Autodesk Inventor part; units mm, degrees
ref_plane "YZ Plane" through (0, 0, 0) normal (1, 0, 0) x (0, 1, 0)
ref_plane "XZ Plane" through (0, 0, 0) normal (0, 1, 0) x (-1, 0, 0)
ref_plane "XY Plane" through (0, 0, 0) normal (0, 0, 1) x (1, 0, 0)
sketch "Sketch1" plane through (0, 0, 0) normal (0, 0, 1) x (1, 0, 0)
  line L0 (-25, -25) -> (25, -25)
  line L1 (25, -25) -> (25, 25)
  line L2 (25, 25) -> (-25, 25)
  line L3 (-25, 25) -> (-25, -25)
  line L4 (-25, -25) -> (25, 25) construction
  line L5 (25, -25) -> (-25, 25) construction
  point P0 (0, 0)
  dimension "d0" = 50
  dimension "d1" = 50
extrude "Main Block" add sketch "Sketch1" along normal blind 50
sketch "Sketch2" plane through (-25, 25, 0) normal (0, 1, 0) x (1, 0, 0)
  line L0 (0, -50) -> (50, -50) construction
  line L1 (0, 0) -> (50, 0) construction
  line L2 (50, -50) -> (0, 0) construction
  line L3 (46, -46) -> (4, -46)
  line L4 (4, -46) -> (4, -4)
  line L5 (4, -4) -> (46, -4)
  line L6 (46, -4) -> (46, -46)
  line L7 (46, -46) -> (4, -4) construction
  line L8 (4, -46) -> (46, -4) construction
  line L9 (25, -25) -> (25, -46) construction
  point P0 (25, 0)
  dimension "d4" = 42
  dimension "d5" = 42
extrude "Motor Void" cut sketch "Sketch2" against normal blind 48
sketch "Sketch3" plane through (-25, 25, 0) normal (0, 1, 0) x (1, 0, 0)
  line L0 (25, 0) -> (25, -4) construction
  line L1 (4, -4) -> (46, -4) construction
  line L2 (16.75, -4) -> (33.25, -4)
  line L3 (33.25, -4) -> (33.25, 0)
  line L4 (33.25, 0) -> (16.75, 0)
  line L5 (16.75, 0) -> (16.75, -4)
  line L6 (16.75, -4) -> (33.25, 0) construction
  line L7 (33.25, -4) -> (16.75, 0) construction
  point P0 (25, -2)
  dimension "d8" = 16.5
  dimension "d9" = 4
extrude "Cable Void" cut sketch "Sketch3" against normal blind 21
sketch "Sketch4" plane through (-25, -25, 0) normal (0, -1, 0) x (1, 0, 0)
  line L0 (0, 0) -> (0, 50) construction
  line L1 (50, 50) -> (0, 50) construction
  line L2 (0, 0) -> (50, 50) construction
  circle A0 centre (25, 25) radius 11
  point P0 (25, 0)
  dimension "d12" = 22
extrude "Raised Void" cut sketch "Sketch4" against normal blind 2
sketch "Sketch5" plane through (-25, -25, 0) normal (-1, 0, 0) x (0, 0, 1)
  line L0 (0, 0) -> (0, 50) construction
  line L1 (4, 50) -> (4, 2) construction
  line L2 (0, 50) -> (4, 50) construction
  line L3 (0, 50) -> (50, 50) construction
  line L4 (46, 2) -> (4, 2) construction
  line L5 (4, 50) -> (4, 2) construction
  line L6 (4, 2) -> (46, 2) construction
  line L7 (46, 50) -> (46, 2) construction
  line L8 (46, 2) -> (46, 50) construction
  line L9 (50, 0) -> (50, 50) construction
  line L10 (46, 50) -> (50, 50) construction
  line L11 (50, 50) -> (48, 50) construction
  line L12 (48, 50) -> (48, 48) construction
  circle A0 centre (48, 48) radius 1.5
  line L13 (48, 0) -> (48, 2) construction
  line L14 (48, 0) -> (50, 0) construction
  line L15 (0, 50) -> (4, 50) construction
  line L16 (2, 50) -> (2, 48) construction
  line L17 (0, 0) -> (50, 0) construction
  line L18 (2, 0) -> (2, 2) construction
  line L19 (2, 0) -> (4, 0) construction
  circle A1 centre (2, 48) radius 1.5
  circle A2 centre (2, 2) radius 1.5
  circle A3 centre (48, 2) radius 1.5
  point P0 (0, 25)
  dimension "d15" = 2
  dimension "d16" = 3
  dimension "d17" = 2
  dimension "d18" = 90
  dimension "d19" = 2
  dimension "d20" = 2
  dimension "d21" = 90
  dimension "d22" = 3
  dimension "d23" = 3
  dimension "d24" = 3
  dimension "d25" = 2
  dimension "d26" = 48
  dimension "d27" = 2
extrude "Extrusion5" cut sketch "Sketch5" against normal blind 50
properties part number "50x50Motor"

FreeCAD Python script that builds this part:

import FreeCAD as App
import Part
import Sketcher
Q = App.Units.Quantity

doc = App.newDocument("Part")
body = doc.addObject("PartDesign::Body", "Body")

sketch1 = body.newObject("Sketcher::SketchObject", "Sketch")
sketch1.AttachmentSupport = (doc.getObject("XY_Plane"), [""])
sketch1.MapMode = "FlatFace"
sketch1.addGeometry([
    Part.LineSegment(App.Vector(-25, 25, 0), App.Vector(-25, -25, 0)),
    Part.LineSegment(App.Vector(-25, -25, 0), App.Vector(25, -25, 0)),
    Part.LineSegment(App.Vector(25, -25, 0), App.Vector(25, 25, 0)),
    Part.LineSegment(App.Vector(25, 25, 0), App.Vector(-25, 25, 0)),
], False)
sketch1.addConstraint([
    Sketcher.Constraint("Coincident", 0, 2, 1, 1),
    Sketcher.Constraint("Coincident", 1, 2, 2, 1),
    Sketcher.Constraint("Coincident", 2, 2, 3, 1),
    Sketcher.Constraint("Coincident", 3, 2, 0, 1),
    Sketcher.Constraint("Vertical", 0),
    Sketcher.Constraint("Horizontal", 1),
    Sketcher.Constraint("Vertical", 2),
    Sketcher.Constraint("Horizontal", 3),
    Sketcher.Constraint("Symmetric", 0, 2, 2, 2, -1, 1),
    Sketcher.Constraint("Equal", 3, 0),
    Sketcher.Constraint("DistanceX", 1, 1, 1, 2, Q("50 mm")),
])
pad1 = body.newObject("PartDesign::Pad", "Pad")
pad1.Profile = sketch1
pad1.Length = 50

sketch2 = body.newObject("Sketcher::SketchObject", "Sketch001")
sketch2.AttachmentSupport = (doc.getObject("XZ_Plane"), [""])
sketch2.MapMode = "FlatFace"
sketch2.AttachmentOffset = App.Placement(App.Vector(0, 0, -25), App.Rotation())
sketch2.addGeometry([
    Part.LineSegment(App.Vector(-21, 46, 0), App.Vector(21, 46, 0)),
    Part.LineSegment(App.Vector(21, 46, 0), App.Vector(21, 4, 0)),
    Part.LineSegment(App.Vector(21, 4, 0), App.Vector(-21, 4, 0)),
    Part.LineSegment(App.Vector(-21, 4, 0), App.Vector(-21, 46, 0)),
], False)
sketch2.addConstraint([
    Sketcher.Constraint("Coincident", 0, 2, 1, 1),
    Sketcher.Constraint("Coincident", 1, 2, 2, 1),
    Sketcher.Constraint("Coincident", 2, 2, 3, 1),
    Sketcher.Constraint("Coincident", 3, 2, 0, 1),
    Sketcher.Constraint("Horizontal", 0),
    Sketcher.Constraint("Vertical", 1),
    Sketcher.Constraint("Horizontal", 2),
    Sketcher.Constraint("Vertical", 3),
    Sketcher.Constraint("Equal", 2, 1),
    Sketcher.Constraint("DistanceX", 0, 1, 0, 2, Q("42 mm")),
    Sketcher.Constraint("DistanceX", -1, 1, 0, 2, Q("21 mm")),
    Sketcher.Constraint("DistanceY", -1, 1, 0, 2, Q("46 mm")),
])
pocket1 = body.newObject("PartDesign::Pocket", "Pocket")
pocket1.Profile = sketch2
pocket1.Length = 48
pocket1.Reversed = True

sketch3 = body.newObject("Sketcher::SketchObject", "Sketch002")
sketch3.AttachmentSupport = (doc.getObject("XZ_Plane"), [""])
sketch3.MapMode = "FlatFace"
sketch3.AttachmentOffset = App.Placement(App.Vector(0, 0, -25), App.Rotation())
sketch3.addGeometry([
    Part.LineSegment(App.Vector(-8.2, 0, 0), App.Vector(-8.2, 4, 0)),
    Part.LineSegment(App.Vector(-8.2, 4, 0), App.Vector(8.2, 4, 0)),
    Part.LineSegment(App.Vector(8.2, 4, 0), App.Vector(8.2, 0, 0)),
    Part.LineSegment(App.Vector(8.2, 0, 0), App.Vector(-8.2, 0, 0)),
], False)
sketch3.addConstraint([
    Sketcher.Constraint("Coincident", 0, 2, 1, 1),
    Sketcher.Constraint("Coincident", 1, 2, 2, 1),
    Sketcher.Constraint("Coincident", 2, 2, 3, 1),
    Sketcher.Constraint("Coincident", 3, 2, 0, 1),
    Sketcher.Constraint("Vertical", 0),
    Sketcher.Constraint("Horizontal", 1),
    Sketcher.Constraint("Vertical", 2),
    Sketcher.Constraint("Horizontal", 3),
    Sketcher.Constraint("Symmetric", 2, 2, 3, 2, -1, 1),
    Sketcher.Constraint("DistanceY", 0, 1, 0, 2, Q("4 mm")),
    Sketcher.Constraint("DistanceX", 1, 1, 1, 2, Q("16.5 mm")),
])
pocket2 = body.newObject("PartDesign::Pocket", "Pocket001")
pocket2.Profile = sketch3
pocket2.Length = 21
pocket2.Reversed = True

sketch4 = body.newObject("Sketcher::SketchObject", "Sketch003")
sketch4.AttachmentSupport = (doc.getObject("XZ_Plane"), [""])
sketch4.MapMode = "FlatFace"
sketch4.AttachmentOffset = App.Placement(App.Vector(0, 0, 25), App.Rotation())
sketch4.addGeometry(Part.Circle(App.Vector(0, 25, 0), App.Vector(0, 0, 1), 11), False)
sketch4.addConstraint([
    Sketcher.Constraint("PointOnObject", 0, 3, -2),
    Sketcher.Constraint("Diameter", 0, Q("22 mm")),
    Sketcher.Constraint("DistanceY", -1, 1, 0, 3, Q("25 mm")),
])
pocket3 = body.newObject("PartDesign::Pocket", "Pocket002")
pocket3.Profile = sketch4
pocket3.Length = 2

sketch5 = body.newObject("Sketcher::SketchObject", "Sketch004")
sketch5.AttachmentSupport = (doc.getObject("YZ_Plane"), [""])
sketch5.MapMode = "FlatFace"
sketch5.AttachmentOffset = App.Placement(App.Vector(0, 0, -25), App.Rotation())
sketch5.addGeometry([
    Part.Circle(App.Vector(23, 48, 0), App.Vector(0, 0, 1), 1.5),
    Part.Circle(App.Vector(23, 2, 0), App.Vector(0, 0, 1), 1.5),
    Part.Circle(App.Vector(-23, 2, 0), App.Vector(0, 0, 1), 1.5),
    Part.Circle(App.Vector(-23, 48, 0), App.Vector(0, 0, 1), 1.5),
], False)
sketch5.addConstraint([
    Sketcher.Constraint("Equal", 0, 1),
    Sketcher.Constraint("Equal", 1, 2),
    Sketcher.Constraint("Equal", 2, 3),
    Sketcher.Constraint("Symmetric", 1, 3, 2, 3, -2),
    Sketcher.Constraint("Symmetric", 0, 3, 3, 3, -2),
    Sketcher.Constraint("Vertical", 0, 3, 1, 3),
    Sketcher.Constraint("Diameter", 0, Q("3 mm")),
    Sketcher.Constraint("DistanceY", -1, 1, 0, 3, Q("48 mm")),
    Sketcher.Constraint("DistanceY", -1, 1, 1, 3, Q("2 mm")),
    Sketcher.Constraint("DistanceX", -1, 1, 0, 3, Q("23 mm")),
])
pocket4 = body.newObject("PartDesign::Pocket", "Pocket003")
pocket4.Profile = sketch5
pocket4.Length = 50
pocket4.Reversed = True

doc.recompute()
